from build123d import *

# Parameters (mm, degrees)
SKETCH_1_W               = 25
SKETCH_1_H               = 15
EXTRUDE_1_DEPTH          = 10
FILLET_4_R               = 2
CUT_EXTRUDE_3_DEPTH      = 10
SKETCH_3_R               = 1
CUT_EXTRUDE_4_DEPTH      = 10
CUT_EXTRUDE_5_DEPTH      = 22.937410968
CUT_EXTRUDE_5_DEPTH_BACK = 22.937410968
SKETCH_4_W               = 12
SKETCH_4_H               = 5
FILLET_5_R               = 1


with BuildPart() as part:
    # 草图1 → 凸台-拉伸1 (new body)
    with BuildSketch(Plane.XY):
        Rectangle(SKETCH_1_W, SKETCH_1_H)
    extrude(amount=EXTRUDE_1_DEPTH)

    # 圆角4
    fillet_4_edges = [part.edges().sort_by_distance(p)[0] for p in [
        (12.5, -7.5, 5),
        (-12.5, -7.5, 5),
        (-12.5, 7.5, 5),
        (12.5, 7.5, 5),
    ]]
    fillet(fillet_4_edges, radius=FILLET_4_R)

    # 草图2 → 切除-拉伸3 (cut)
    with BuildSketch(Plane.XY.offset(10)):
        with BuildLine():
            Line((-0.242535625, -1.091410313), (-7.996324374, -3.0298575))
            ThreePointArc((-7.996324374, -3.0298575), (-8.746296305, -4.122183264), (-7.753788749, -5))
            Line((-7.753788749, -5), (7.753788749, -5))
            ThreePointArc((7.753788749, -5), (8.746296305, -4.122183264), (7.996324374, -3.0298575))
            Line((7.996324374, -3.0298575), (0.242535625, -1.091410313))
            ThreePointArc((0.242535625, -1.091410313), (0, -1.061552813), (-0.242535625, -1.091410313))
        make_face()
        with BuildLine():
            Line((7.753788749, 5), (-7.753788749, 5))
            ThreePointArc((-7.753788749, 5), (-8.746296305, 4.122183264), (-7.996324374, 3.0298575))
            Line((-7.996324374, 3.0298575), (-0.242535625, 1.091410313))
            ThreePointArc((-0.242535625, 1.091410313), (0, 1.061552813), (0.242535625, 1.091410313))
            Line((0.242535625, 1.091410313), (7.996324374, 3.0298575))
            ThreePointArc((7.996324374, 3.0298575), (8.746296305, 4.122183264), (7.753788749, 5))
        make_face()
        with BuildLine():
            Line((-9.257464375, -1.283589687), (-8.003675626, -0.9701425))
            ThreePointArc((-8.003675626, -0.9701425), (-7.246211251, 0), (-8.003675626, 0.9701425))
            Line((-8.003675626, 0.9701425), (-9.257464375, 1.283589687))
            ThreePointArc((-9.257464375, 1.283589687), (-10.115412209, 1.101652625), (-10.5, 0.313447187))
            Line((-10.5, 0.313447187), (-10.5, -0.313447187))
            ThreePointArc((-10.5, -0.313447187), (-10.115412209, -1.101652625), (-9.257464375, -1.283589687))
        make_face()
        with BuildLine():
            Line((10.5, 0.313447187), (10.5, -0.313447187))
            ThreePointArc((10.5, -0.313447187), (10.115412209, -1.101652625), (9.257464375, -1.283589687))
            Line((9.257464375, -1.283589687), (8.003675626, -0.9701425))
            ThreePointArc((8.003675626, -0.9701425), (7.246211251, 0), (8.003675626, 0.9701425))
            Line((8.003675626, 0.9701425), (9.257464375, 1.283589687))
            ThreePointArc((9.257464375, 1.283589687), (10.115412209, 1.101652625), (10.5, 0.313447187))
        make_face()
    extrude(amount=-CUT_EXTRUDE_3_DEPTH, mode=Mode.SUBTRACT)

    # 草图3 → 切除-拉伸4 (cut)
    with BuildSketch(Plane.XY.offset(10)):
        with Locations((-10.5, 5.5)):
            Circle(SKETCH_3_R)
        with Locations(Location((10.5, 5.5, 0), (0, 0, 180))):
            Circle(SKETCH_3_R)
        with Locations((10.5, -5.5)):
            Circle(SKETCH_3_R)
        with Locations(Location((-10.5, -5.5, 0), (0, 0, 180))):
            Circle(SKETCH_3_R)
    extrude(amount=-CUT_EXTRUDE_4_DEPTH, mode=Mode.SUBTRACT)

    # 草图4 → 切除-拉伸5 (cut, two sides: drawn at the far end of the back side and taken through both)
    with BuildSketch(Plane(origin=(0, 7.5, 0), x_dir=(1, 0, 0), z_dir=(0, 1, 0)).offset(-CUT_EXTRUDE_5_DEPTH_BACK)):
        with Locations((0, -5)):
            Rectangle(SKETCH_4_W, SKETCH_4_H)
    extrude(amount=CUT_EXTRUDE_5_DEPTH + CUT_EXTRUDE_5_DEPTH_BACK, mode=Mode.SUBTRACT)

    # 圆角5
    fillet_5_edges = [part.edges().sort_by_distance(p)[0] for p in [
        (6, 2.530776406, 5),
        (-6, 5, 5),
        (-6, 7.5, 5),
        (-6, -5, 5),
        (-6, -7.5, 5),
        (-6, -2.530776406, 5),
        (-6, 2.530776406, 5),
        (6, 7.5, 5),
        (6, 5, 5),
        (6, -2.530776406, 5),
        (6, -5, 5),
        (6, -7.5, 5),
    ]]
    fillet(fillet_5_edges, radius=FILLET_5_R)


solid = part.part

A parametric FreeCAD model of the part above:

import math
import FreeCAD as App
import Part
import Sketcher
from FreeCAD import Vector


def edges_at(feature, points):
    """Names of the edges that pass closest to the given points."""
    edges = feature.Shape.Edges
    near = lambda p: min(range(len(edges)), key=lambda i: edges[i].distToShape(Part.Vertex(*p))[0])
    return sorted({f"Edge{near(p) + 1}" for p in points})

doc = App.newDocument("Part")
body = doc.addObject("PartDesign::Body", "Body")

# Sketch on XY plane
sketch1 = body.newObject("Sketcher::SketchObject", "Sketch")
sketch1.AttachmentSupport = (doc.getObject("XY_Plane"), [""])
sketch1.MapMode = "FlatFace"
sketch1.addGeometry([
    Part.LineSegment(Vector(-12, 8, 0), Vector(-12, -8, 0)),
    Part.LineSegment(Vector(-12, -8, 0), Vector(12, -8, 0)),
    Part.LineSegment(Vector(12, -8, 0), Vector(12, 8, 0)),
    Part.LineSegment(Vector(12, 8, 0), Vector(-12, 8, 0)),
], False)
sketch1.addConstraint([
    Sketcher.Constraint("Coincident", 0, 2, 1, 1),
    Sketcher.Constraint("Coincident", 1, 2, 2, 1),
    Sketcher.Constraint("Coincident", 2, 2, 3, 1),
    Sketcher.Constraint("Coincident", 3, 2, 0, 1),
    Sketcher.Constraint("Vertical", 0),
    Sketcher.Constraint("Horizontal", 1),
    Sketcher.Constraint("Vertical", 2),
    Sketcher.Constraint("Horizontal", 3),
    Sketcher.Constraint("Symmetric", 0, 2, 2, 2, -1, 1),
    Sketcher.Constraint("DistanceX", 1, 1, 1, 2, 25.0),
    Sketcher.Constraint("DistanceY", 0, 2, 0, 1, 15.0),
])
pad1 = body.newObject("PartDesign::Pad", "Pad")
pad1.Profile = sketch1
pad1.Length = 10
doc.recompute()

fillet = body.newObject("PartDesign::Fillet", "Fillet")
fillet.Base = (pad1, edges_at(pad1, [
    (12.5, -7.5, 5),
    (-12.5, -7.5, 5),
    (-12.5, 7.5, 5),
    (12.5, 7.5, 5),
]))
fillet.Radius = 2

# Sketch on XY plane
sketch2 = body.newObject("Sketcher::SketchObject", "Sketch001")
sketch2.AttachmentSupport = (doc.getObject("XY_Plane"), [""])
sketch2.MapMode = "FlatFace"
sketch2.AttachmentOffset = App.Placement(Vector(0, 0, 10), App.Rotation())
sketch2.addGeometry([
    Part.LineSegment(Vector(-0.24, -1.09, 0), Vector(-8, -3.03, 0)),  # 0
    Part.ArcOfCircle(Part.Circle(Vector(-7.75, -4, 0), Vector(0, 0, 1), 1), math.radians(104), math.radians(270)),  # 1
    Part.LineSegment(Vector(-7.75, -5, 0), Vector(7.75, -5, 0)),  # 2
    Part.ArcOfCircle(Part.Circle(Vector(7.75, -4, 0), Vector(0, 0, 1), 1), math.radians(-90), math.radians(76)),  # 3
    Part.LineSegment(Vector(8, -3.03, 0), Vector(0.24, -1.09, 0)),  # 4
    Part.ArcOfCircle(Part.Circle(Vector(0, -2.06, 0), Vector(0, 0, 1), 1), math.radians(76), math.radians(104)),  # 5
    Part.LineSegment(Vector(7.75, 5, 0), Vector(-7.75, 5, 0)),  # 6
    Part.ArcOfCircle(Part.Circle(Vector(-7.75, 4, 0), Vector(0, 0, 1), 1), math.radians(90), math.radians(256)),  # 7
    Part.LineSegment(Vector(-8, 3.03, 0), Vector(-0.24, 1.09, 0)),  # 8
    Part.ArcOfCircle(Part.Circle(Vector(0, 2.06, 0), Vector(0, 0, 1), 1), math.radians(-104), math.radians(-76)),  # 9
    Part.LineSegment(Vector(0.24, 1.09, 0), Vector(8, 3.03, 0)),  # 10
    Part.ArcOfCircle(Part.Circle(Vector(7.75, 4, 0), Vector(0, 0, 1), 1), math.radians(-76), math.radians(90)),  # 11
    Part.LineSegment(Vector(-9.26, -1.28, 0), Vector(-8, -0.97, 0)),  # 12
    Part.ArcOfCircle(Part.Circle(Vector(-8.25, 0, 0), Vector(0, 0, 1), 1), math.radians(-76), math.radians(76)),  # 13
    Part.LineSegment(Vector(-8, 0.97, 0), Vector(-9.26, 1.28, 0)),  # 14
    Part.ArcOfCircle(Part.Circle(Vector(-9.5, 0.31, 0), Vector(0, 0, 1), 1), math.radians(76), math.radians(180)),  # 15
    Part.LineSegment(Vector(-10.5, 0.31, 0), Vector(-10.5, -0.31, 0)),  # 16
    Part.ArcOfCircle(Part.Circle(Vector(-9.5, -0.31, 0), Vector(0, 0, 1), 1), math.radians(180), math.radians(284)),  # 17
    Part.LineSegment(Vector(10.5, -0.31, 0), Vector(10.5, 0.31, 0)),  # 18
    Part.ArcOfCircle(Part.Circle(Vector(9.5, 0.31, 0), Vector(0, 0, 1), 1), math.radians(0), math.radians(104)),  # 19
    Part.LineSegment(Vector(9.26, 1.28, 0), Vector(8, 0.97, 0)),  # 20
    Part.ArcOfCircle(Part.Circle(Vector(8.25, 0, 0), Vector(0, 0, 1), 1), math.radians(104), math.radians(256)),  # 21
    Part.LineSegment(Vector(8, -0.97, 0), Vector(9.26, -1.28, 0)),  # 22
    Part.ArcOfCircle(Part.Circle(Vector(9.5, -0.31, 0), Vector(0, 0, 1), 1), math.radians(-104), math.radians(0)),  # 23
], False)
sketch2.addConstraint([
    Sketcher.Constraint("Tangent", 0, 2, 1, 1),
    Sketcher.Constraint("Tangent", 1, 2, 2, 1),
    Sketcher.Constraint("Tangent", 2, 2, 3, 1),
    Sketcher.Constraint("Tangent", 3, 2, 4, 1),
    Sketcher.Constraint("Tangent", 4, 2, 5, 1),
    Sketcher.Constraint("Tangent", 5, 2, 0, 1),
    Sketcher.Constraint("Tangent", 6, 2, 7, 1),
    Sketcher.Constraint("Tangent", 7, 2, 8, 1),
    Sketcher.Constraint("Tangent", 8, 2, 9, 1),
    Sketcher.Constraint("Tangent", 9, 2, 10, 1),
    Sketcher.Constraint("Tangent", 10, 2, 11, 1),
    Sketcher.Constraint("Tangent", 11, 2, 6, 1),
    Sketcher.Constraint("Tangent", 12, 2, 13, 1),
    Sketcher.Constraint("Tangent", 13, 2, 14, 1),
    Sketcher.Constraint("Tangent", 14, 2, 15, 1),
    Sketcher.Constraint("Tangent", 15, 2, 16, 1),
    Sketcher.Constraint("Tangent", 16, 2, 17, 1),
    Sketcher.Constraint("Tangent", 17, 2, 12, 1),
    Sketcher.Constraint("Tangent", 18, 2, 19, 1),
    Sketcher.Constraint("Tangent", 19, 2, 20, 1),
    Sketcher.Constraint("Tangent", 20, 2, 21, 1),
    Sketcher.Constraint("Tangent", 21, 2, 22, 1),
    Sketcher.Constraint("Tangent", 22, 2, 23, 1),
    Sketcher.Constraint("Tangent", 23, 2, 18, 1),
    Sketcher.Constraint("Horizontal", 2),
    Sketcher.Constraint("Horizontal", 6),
    Sketcher.Constraint("Vertical", 16),
    Sketcher.Constraint("Vertical", 18),
    Sketcher.Constraint("Equal", 1, 3),
    Sketcher.Constraint("Equal", 3, 5),
    Sketcher.Constraint("Equal", 5, 7),
    Sketcher.Constraint("Equal", 7, 9),
    Sketcher.Constraint("Equal", 9, 11),
    Sketcher.Constraint("Equal", 11, 13),
    Sketcher.Constraint("Equal", 13, 15),
    Sketcher.Constraint("Equal", 15, 17),
    Sketcher.Constraint("Equal", 17, 19),
    Sketcher.Constraint("Equal", 19, 21),
    Sketcher.Constraint("Equal", 21, 23),
    Sketcher.Constraint("Symmetric", 3, 3, 7, 3, -1, 1),
    Sketcher.Constraint("Symmetric", 5, 3, 9, 3, -1, 1),
    Sketcher.Constraint("Symmetric", 17, 3, 19, 3, -1, 1),
    Sketcher.Constraint("Symmetric", 13, 3, 21, 3, -1, 1),
    Sketcher.Constraint("Symmetric", 0, 2, 3, 2, -2),
    Sketcher.Constraint("Symmetric", 14, 2, 19, 2, -2),
    Sketcher.Constraint("Parallel", 0, 10),
    Sketcher.Constraint("Parallel", 10, 12),
    Sketcher.Constraint("Parallel", 14, 22),
    Sketcher.Constraint("Radius", 1, 1.0),
    Sketcher.Constraint("DistanceY", 1, 3, -1, 1, 4.0),
    Sketcher.Constraint("DistanceX", 13, 3, 3, 3, 16.0),
    Sketcher.Constraint("DistanceX", 15, 3, -1, 1, 9.5),
    Sketcher.Constraint("DistanceY", 5, 3, 15, 3, 2.375),
    Sketcher.Constraint("DistanceX", 2, 1, 2, 2, 15.507577),
])
pocket1 = body.newObject("PartDesign::Pocket", "Pocket")
pocket1.Profile = sketch2
pocket1.Length = 10

# Sketch on XY plane
sketch3 = body.newObject("Sketcher::SketchObject", "Sketch002")
sketch3.AttachmentSupport = (doc.getObject("XY_Plane"), [""])
sketch3.MapMode = "FlatFace"
sketch3.AttachmentOffset = App.Placement(Vector(0, 0, 10), App.Rotation())
sketch3.addGeometry([
    Part.Circle(Vector(-10.5, 5.5, 0), Vector(0, 0, 1), 1),
    Part.Circle(Vector(10.5, 5.5, 0), Vector(0, 0, 1), 1),
    Part.Circle(Vector(10.5, -5.5, 0), Vector(0, 0, 1), 1),
    Part.Circle(Vector(-10.5, -5.5, 0), Vector(0, 0, 1), 1),
], False)
sketch3.addConstraint([
    Sketcher.Constraint("Equal", 0, 1),
    Sketcher.Constraint("Equal", 1, 2),
    Sketcher.Constraint("Equal", 2, 3),
    Sketcher.Constraint("Symmetric", 0, 3, 2, 3, -1, 1),
    Sketcher.Constraint("Symmetric", 1, 3, 3, 3, -1, 1),
    Sketcher.Constraint("Symmetric", 0, 3, 1, 3, -2),
    Sketcher.Constraint("Diameter", 0, 2.0),
    Sketcher.Constraint("DistanceX", 0, 3, 1, 3, 21.0),
    Sketcher.Constraint("DistanceY", 2, 3, 1, 3, 11.0),
])
pocket2 = body.newObject("PartDesign::Pocket", "Pocket001")
pocket2.Profile = sketch3
pocket2.Length = 10

# Sketch on XZ plane
sketch4 = body.newObject("Sketcher::SketchObject", "Sketch003")
sketch4.AttachmentSupport = (doc.getObject("XZ_Plane"), [""])
sketch4.MapMode = "FlatFace"
sketch4.AttachmentOffset = App.Placement(Vector(0, 0, -7.5), App.Rotation())
sketch4.addGeometry([
    Part.LineSegment(Vector(-6, 2, 0), Vector(-6, 8, 0)),
    Part.LineSegment(Vector(-6, 8, 0), Vector(6, 8, 0)),
    Part.LineSegment(Vector(6, 8, 0), Vector(6, 2, 0)),
    Part.LineSegment(Vector(6, 2, 0), Vector(-6, 2, 0)),
], False)
sketch4.addConstraint([
    Sketcher.Constraint("Coincident", 0, 2, 1, 1),
    Sketcher.Constraint("Coincident", 1, 2, 2, 1),
    Sketcher.Constraint("Coincident", 2, 2, 3, 1),
    Sketcher.Constraint("Coincident", 3, 2, 0, 1),
    Sketcher.Constraint("Vertical", 0),
    Sketcher.Constraint("Horizontal", 1),
    Sketcher.Constraint("Vertical", 2),
    Sketcher.Constraint("Horizontal", 3),
    Sketcher.Constraint("DistanceX", 1, 1, 1, 2, 12.0),
    Sketcher.Constraint("DistanceY", 0, 1, 0, 2, 5.0),
    Sketcher.Constraint("DistanceX", 0, 2, -1, 1, 6.0),
    Sketcher.Constraint("DistanceY", -1, 1, 0, 2, 7.5),
])
pocket3 = body.newObject("PartDesign::Pocket", "Pocket002")
pocket3.Profile = sketch4
pocket3.Type = "ThroughAll"
pocket3.Midplane = True
doc.recompute()

fillet2 = body.newObject("PartDesign::Fillet", "Fillet001")
fillet2.Base = (pocket3, edges_at(pocket3, [
    (6, 2.531, 5),
    (-6, 5, 5),
    (-6, 7.5, 5),
    (-6, -5, 5),
    (-6, -7.5, 5),
    (-6, -2.531, 5),
    (-6, 2.531, 5),
    (6, 7.5, 5),
    (6, 5, 5),
    (6, -2.531, 5),
    (6, -5, 5),
    (6, -7.5, 5),
]))
fillet2.Radius = 1

doc.recompute()
